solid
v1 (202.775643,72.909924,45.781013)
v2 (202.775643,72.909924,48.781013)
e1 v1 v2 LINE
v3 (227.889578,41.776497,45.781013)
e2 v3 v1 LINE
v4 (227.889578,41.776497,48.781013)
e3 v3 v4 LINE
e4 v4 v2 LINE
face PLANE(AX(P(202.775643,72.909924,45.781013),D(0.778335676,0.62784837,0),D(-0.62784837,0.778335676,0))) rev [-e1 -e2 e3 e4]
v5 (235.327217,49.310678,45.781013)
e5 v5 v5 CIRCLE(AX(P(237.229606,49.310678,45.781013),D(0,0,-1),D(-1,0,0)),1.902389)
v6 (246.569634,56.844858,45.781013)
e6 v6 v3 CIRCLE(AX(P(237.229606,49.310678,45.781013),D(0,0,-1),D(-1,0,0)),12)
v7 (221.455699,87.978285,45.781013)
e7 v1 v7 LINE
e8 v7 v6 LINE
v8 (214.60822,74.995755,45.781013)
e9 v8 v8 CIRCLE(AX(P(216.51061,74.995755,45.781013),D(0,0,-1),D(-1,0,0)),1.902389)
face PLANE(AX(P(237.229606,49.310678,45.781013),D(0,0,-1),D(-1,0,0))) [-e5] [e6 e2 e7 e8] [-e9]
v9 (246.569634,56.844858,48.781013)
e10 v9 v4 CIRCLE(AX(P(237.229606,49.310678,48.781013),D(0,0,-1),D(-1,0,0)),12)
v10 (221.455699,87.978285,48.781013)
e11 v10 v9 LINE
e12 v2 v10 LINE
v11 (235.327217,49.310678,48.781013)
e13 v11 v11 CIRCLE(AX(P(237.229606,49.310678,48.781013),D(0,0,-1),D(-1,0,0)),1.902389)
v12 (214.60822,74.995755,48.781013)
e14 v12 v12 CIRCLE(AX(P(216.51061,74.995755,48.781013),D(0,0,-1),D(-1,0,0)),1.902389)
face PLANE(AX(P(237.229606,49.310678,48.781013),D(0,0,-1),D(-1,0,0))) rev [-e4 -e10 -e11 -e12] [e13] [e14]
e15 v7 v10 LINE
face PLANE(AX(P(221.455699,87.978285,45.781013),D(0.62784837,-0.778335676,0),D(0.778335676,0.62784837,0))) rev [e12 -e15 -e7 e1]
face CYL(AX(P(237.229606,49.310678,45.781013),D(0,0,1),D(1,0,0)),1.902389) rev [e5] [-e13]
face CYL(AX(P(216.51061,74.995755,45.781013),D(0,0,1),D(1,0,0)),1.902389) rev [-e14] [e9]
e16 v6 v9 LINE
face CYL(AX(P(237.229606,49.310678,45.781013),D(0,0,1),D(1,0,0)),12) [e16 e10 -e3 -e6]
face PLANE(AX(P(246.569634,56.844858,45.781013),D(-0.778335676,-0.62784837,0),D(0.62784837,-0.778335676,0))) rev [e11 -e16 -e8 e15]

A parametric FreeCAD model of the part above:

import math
import FreeCAD as App
import Part
import Sketcher

doc = App.newDocument("Part")
body = doc.addObject("PartDesign::Body", "Body")

sketch1 = doc.addObject("Sketcher::SketchObject", "Sketch")
body.addObject(sketch1)
sketch1.AttachmentSupport = (doc.XY_Plane, [""])
sketch1.MapMode = "FlatFace"
sketch1.AttachmentOffset = App.Placement(App.Vector(0, 0, 48.781013), App.Rotation())
sketch1.addGeometry(Part.LineSegment(App.Vector(221.5, 88, 0), App.Vector(246.6, 56.8, 0)), False)
sketch1.addGeometry(Part.ArcOfCircle(Part.Circle(App.Vector(237.2, 49.3, 0), App.Vector(0, 0, 1), 12), math.radians(-141), math.radians(39)), False)
sketch1.addGeometry(Part.LineSegment(App.Vector(227.9, 41.8, 0), App.Vector(202.8, 72.9, 0)), False)
sketch1.addGeometry(Part.LineSegment(App.Vector(202.8, 72.9, 0), App.Vector(221.5, 88, 0)), False)
sketch1.addGeometry(Part.Circle(App.Vector(237.2, 49.3, 0), App.Vector(0, 0, 1), 1.9), False)
sketch1.addGeometry(Part.Circle(App.Vector(216.5, 75, 0), App.Vector(0, 0, 1), 1.9), False)
sketch1.addConstraint(Sketcher.Constraint("Tangent", 0, 2, 1, 2))
sketch1.addConstraint(Sketcher.Constraint("Tangent", 1, 1, 2, 1))
sketch1.addConstraint(Sketcher.Constraint("Coincident", 2, 2, 3, 1))
sketch1.addConstraint(Sketcher.Constraint("Coincident", 3, 2, 0, 1))
sketch1.addConstraint(Sketcher.Constraint("Coincident", 4, 3, 1, 3))
sketch1.addConstraint(Sketcher.Constraint("Equal", 4, 5))
sketch1.addConstraint(Sketcher.Constraint("Parallel", 0, 2))
sketch1.addConstraint(Sketcher.Constraint("Perpendicular", 2, 3))
sketch1.addConstraint(Sketcher.Constraint("Radius", 1, 12.0))
sketch1.addConstraint(Sketcher.Constraint("Distance", 0, 40.0))
sketch1.addConstraint(Sketcher.Constraint("Diameter", 4, 3.804778))
sketch1.addConstraint(Sketcher.Constraint("DistanceX", -1, 1, 3, 2, 221.455699))
sketch1.addConstraint(Sketcher.Constraint("DistanceX", -1, 1, 5, 3, 216.51061))
sketch1.addConstraint(Sketcher.Constraint("DistanceY", -1, 1, 0, 2, 56.844858))
sketch1.addConstraint(Sketcher.Constraint("DistanceX", 1, 3, 0, 2, 9.340028))
sketch1.addConstraint(Sketcher.Constraint("DistanceY", 2, 2, 5, 3, 2.085831))
pad1 = doc.addObject("PartDesign::Pad", "Pad")
body.addObject(pad1)
pad1.Profile = sketch1
pad1.Length = 3
pad1.Reversed = True

doc.recompute()
